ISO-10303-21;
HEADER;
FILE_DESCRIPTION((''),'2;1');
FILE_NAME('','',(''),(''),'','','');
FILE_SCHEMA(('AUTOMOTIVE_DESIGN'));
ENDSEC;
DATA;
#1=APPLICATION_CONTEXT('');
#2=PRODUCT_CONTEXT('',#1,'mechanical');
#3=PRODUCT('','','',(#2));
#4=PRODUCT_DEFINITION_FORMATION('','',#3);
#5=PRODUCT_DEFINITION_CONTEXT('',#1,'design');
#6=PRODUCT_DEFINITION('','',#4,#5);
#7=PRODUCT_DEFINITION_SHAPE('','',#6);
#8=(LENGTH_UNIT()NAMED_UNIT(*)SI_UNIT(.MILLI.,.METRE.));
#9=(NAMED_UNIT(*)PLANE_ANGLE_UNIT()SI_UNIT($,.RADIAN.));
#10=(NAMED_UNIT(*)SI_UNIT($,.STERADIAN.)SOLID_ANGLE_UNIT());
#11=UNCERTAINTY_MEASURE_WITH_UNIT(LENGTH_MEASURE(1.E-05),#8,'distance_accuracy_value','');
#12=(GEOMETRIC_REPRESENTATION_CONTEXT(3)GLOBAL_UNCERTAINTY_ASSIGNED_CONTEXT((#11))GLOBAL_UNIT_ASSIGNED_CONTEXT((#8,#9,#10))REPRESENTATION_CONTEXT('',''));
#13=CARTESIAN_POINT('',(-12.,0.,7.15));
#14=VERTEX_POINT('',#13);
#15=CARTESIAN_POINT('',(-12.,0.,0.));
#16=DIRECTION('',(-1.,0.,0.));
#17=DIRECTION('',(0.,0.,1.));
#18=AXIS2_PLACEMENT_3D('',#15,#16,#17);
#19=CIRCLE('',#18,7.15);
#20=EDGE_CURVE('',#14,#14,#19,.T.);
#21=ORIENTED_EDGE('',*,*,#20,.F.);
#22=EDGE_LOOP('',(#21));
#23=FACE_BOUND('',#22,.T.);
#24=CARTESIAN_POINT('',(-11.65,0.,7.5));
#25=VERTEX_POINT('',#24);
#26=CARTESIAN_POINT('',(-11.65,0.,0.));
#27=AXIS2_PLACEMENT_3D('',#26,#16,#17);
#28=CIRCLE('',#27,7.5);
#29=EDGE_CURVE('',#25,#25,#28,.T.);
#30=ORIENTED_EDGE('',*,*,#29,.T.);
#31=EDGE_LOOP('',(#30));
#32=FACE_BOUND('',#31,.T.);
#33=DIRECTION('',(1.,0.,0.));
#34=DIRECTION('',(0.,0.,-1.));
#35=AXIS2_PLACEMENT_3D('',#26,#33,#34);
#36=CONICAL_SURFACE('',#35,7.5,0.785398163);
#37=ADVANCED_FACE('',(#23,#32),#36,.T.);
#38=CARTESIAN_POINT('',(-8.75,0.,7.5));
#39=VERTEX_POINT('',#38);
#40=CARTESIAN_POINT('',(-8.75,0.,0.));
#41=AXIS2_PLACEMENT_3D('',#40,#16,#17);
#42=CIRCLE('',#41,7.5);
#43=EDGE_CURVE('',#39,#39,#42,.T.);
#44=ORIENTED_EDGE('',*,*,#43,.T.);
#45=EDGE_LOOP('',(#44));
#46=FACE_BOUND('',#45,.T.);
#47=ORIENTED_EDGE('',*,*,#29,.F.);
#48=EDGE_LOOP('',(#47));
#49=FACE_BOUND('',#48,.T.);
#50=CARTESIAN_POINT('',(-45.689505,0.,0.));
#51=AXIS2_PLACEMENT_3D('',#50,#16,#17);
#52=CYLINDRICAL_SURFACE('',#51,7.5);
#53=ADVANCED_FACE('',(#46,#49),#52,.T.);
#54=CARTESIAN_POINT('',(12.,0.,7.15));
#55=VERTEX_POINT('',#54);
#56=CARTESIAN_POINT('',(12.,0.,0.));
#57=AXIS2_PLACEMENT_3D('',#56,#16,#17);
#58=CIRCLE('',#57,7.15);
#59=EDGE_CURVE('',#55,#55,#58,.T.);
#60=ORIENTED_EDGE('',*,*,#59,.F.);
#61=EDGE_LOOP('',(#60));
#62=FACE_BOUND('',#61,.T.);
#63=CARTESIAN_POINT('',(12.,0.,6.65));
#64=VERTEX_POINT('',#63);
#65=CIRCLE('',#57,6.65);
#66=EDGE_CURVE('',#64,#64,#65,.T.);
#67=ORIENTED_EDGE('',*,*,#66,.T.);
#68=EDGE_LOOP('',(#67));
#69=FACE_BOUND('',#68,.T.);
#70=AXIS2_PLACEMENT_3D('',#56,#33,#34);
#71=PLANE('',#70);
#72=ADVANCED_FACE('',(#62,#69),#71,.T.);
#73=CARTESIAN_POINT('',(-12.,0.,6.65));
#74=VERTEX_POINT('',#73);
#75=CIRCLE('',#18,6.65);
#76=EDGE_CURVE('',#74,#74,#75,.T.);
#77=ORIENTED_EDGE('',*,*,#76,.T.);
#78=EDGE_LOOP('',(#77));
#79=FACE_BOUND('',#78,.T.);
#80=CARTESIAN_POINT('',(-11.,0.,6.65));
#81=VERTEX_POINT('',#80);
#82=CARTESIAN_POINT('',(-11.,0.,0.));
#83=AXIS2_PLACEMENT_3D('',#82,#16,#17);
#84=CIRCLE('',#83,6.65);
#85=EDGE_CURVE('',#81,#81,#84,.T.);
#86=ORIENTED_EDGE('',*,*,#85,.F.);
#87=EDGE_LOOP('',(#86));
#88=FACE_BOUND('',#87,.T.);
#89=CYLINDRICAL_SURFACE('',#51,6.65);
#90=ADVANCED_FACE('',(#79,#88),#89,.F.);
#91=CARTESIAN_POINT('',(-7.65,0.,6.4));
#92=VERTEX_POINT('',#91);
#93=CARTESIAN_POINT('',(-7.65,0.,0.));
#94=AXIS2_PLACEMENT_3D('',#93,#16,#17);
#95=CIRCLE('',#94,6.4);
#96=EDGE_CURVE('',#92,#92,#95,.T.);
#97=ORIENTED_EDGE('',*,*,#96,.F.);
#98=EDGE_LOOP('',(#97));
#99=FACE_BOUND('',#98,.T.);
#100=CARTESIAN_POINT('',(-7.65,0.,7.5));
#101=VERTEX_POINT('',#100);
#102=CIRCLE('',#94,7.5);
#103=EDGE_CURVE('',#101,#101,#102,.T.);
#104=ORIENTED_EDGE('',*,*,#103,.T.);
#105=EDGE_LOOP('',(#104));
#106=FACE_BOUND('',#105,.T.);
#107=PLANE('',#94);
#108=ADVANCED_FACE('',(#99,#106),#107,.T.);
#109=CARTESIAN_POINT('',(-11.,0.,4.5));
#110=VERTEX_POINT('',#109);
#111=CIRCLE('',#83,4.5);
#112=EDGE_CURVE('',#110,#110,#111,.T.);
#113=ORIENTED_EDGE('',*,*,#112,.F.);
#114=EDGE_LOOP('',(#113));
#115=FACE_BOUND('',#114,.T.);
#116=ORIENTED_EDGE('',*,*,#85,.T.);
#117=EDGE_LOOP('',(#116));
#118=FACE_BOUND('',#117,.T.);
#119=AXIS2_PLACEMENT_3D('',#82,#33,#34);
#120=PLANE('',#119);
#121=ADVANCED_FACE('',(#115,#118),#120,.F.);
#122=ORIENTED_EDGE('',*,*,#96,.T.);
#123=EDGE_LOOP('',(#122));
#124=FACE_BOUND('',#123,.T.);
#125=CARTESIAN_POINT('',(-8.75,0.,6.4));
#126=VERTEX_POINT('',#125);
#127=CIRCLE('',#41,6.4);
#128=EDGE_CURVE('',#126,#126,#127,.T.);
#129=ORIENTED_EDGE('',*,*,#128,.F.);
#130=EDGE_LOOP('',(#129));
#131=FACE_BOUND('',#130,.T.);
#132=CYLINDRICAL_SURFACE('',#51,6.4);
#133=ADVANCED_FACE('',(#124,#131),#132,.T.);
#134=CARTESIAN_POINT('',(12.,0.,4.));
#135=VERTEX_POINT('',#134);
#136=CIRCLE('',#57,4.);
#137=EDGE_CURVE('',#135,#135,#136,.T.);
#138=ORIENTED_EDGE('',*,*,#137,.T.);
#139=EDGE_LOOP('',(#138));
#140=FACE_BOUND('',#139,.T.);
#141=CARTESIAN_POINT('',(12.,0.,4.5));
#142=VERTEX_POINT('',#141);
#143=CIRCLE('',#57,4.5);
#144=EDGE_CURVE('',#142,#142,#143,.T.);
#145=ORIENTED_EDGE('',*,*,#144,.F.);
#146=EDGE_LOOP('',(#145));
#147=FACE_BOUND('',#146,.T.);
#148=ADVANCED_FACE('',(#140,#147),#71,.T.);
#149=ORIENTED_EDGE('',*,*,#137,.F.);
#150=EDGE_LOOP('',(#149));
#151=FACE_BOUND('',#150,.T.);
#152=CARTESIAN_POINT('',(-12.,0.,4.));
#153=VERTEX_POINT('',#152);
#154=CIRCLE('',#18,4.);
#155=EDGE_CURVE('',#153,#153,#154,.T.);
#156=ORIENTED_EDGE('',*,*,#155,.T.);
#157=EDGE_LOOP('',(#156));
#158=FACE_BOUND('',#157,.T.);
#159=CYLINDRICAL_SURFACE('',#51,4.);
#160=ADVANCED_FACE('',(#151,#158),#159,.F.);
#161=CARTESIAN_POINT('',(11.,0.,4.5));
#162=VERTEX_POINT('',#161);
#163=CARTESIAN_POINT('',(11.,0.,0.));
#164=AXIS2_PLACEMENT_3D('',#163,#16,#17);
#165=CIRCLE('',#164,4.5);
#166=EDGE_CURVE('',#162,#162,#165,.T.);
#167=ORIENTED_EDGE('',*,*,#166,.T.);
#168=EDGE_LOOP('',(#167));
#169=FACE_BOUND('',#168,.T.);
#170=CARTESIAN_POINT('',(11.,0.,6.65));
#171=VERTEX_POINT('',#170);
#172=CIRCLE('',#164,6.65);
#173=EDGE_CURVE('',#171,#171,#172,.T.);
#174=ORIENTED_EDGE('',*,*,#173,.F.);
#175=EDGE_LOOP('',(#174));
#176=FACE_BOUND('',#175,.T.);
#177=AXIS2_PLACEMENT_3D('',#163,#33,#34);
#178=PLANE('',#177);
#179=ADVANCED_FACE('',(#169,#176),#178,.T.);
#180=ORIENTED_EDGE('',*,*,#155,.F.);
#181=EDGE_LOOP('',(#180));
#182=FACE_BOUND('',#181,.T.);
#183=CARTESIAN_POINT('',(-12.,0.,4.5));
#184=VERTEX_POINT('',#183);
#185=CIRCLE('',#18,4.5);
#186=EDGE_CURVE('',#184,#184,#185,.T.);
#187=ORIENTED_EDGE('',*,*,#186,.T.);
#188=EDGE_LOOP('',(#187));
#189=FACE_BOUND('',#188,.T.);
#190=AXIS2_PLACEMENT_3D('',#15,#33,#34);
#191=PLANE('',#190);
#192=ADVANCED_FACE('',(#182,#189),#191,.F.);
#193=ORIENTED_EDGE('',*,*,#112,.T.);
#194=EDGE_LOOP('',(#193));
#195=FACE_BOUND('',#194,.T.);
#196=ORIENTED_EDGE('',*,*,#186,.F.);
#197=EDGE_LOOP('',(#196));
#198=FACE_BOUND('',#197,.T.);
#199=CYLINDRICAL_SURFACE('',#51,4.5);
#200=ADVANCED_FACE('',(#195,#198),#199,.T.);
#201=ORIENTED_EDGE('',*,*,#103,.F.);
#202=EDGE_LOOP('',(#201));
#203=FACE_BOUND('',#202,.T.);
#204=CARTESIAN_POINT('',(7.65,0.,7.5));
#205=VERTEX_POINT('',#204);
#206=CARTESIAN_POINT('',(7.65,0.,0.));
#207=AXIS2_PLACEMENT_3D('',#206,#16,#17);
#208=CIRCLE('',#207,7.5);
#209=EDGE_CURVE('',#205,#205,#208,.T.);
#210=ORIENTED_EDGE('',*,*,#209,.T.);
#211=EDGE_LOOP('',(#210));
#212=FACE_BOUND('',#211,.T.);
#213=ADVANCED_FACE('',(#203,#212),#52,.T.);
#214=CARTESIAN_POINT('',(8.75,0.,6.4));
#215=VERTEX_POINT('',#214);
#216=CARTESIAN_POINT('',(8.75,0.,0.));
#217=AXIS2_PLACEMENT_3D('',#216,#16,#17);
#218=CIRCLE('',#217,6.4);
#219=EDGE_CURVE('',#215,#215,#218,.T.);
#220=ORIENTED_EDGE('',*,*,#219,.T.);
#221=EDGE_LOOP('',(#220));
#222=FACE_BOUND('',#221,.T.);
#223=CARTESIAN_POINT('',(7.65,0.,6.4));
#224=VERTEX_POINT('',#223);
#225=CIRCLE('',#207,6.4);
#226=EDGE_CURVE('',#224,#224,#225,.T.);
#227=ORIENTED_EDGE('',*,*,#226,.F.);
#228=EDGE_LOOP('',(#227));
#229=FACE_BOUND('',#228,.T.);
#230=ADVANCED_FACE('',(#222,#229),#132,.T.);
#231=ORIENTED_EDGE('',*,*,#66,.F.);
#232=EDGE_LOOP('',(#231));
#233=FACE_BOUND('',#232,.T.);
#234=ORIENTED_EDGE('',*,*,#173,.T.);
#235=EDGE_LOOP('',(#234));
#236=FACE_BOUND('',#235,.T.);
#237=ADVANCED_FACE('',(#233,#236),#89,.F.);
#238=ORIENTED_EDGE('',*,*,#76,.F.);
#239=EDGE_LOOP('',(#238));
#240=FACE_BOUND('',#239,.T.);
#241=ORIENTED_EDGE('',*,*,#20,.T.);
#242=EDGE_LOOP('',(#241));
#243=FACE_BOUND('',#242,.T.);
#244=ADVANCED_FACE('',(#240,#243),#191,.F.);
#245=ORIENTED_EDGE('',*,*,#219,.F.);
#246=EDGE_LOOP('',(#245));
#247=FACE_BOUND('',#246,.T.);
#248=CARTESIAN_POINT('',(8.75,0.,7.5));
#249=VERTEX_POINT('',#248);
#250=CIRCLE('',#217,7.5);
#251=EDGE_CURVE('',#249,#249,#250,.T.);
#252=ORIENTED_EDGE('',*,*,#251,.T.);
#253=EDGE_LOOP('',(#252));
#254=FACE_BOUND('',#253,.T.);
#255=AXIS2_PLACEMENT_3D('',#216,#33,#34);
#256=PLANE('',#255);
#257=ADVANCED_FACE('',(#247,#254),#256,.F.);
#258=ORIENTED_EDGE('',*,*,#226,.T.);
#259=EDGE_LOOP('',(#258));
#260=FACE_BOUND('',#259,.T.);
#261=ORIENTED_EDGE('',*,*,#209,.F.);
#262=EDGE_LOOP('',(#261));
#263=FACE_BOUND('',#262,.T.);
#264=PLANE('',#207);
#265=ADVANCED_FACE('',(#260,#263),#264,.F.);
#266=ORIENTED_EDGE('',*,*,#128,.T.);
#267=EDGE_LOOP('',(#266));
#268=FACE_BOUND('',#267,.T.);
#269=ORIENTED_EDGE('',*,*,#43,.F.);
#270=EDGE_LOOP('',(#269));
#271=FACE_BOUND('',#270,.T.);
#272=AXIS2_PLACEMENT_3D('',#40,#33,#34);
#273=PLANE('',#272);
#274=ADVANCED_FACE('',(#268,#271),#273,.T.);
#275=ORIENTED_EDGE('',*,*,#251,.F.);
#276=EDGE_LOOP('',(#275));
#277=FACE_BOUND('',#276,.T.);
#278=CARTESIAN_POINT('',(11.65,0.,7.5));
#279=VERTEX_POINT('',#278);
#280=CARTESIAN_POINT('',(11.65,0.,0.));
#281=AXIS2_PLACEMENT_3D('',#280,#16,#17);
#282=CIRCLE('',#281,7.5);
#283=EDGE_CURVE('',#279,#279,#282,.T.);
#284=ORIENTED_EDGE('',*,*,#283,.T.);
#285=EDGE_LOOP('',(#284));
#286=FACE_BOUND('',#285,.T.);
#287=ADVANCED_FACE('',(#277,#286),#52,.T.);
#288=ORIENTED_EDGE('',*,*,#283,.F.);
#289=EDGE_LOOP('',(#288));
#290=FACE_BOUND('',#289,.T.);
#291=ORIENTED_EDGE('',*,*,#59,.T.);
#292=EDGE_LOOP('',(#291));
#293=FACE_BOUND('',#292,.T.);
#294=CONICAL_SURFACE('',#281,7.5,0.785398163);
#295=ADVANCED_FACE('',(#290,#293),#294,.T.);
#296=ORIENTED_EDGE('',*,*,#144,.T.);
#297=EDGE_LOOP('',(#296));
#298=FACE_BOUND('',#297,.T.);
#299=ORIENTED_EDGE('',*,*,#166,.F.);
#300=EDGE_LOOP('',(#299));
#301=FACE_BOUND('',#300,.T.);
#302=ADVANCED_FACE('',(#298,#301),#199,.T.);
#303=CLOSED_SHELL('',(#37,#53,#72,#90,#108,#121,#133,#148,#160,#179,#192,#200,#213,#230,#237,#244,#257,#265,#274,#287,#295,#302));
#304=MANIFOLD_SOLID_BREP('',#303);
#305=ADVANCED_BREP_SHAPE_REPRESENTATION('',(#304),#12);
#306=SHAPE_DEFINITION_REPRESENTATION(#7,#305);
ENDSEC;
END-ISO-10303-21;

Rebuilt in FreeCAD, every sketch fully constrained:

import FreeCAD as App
import Part
import Sketcher

V = App.Vector

doc = App.newDocument("Part")
body = doc.addObject("PartDesign::Body", "Body")

# Sketch on XY plane
sketch1 = doc.addObject("Sketcher::SketchObject", "Sketch")
body.addObject(sketch1)
sketch1.AttachmentSupport = (doc.XY_Plane, [""])
sketch1.MapMode = "FlatFace"
sketch1.addGeometry(Part.LineSegment(V(12, 7.15, 0), V(11.65, 7.5, 0)), False)
sketch1.addGeometry(Part.LineSegment(V(11.65, 7.5, 0), V(8.75, 7.5, 0)), False)
sketch1.addGeometry(Part.LineSegment(V(8.75, 7.5, 0), V(8.75, 6.4, 0)), False)
sketch1.addGeometry(Part.LineSegment(V(8.75, 6.4, 0), V(7.65, 6.4, 0)), False)
sketch1.addGeometry(Part.LineSegment(V(7.65, 6.4, 0), V(7.65, 7.5, 0)), False)
sketch1.addGeometry(Part.LineSegment(V(7.65, 7.5, 0), V(-7.65, 7.5, 0)), False)
sketch1.addGeometry(Part.LineSegment(V(-7.65, 7.5, 0), V(-7.65, 6.4, 0)), False)
sketch1.addGeometry(Part.LineSegment(V(-7.65, 6.4, 0), V(-8.75, 6.4, 0)), False)
sketch1.addGeometry(Part.LineSegment(V(-8.75, 6.4, 0), V(-8.75, 7.5, 0)), False)
sketch1.addGeometry(Part.LineSegment(V(-8.75, 7.5, 0), V(-11.65, 7.5, 0)), False)
sketch1.addGeometry(Part.LineSegment(V(-11.65, 7.5, 0), V(-12, 7.15, 0)), False)
sketch1.addGeometry(Part.LineSegment(V(-12, 7.15, 0), V(-12, 6.65, 0)), False)
sketch1.addGeometry(Part.LineSegment(V(-12, 6.65, 0), V(-11, 6.65, 0)), False)
sketch1.addGeometry(Part.LineSegment(V(-11, 6.65, 0), V(-11, 4.5, 0)), False)
sketch1.addGeometry(Part.LineSegment(V(-11, 4.5, 0), V(-12, 4.5, 0)), False)
sketch1.addGeometry(Part.LineSegment(V(-12, 4.5, 0), V(-12, 4, 0)), False)
sketch1.addGeometry(Part.LineSegment(V(-12, 4, 0), V(12, 4, 0)), False)
sketch1.addGeometry(Part.LineSegment(V(12, 4, 0), V(12, 4.5, 0)), False)
sketch1.addGeometry(Part.LineSegment(V(12, 4.5, 0), V(11, 4.5, 0)), False)
sketch1.addGeometry(Part.LineSegment(V(11, 4.5, 0), V(11, 6.65, 0)), False)
sketch1.addGeometry(Part.LineSegment(V(11, 6.65, 0), V(12, 6.65, 0)), False)
sketch1.addGeometry(Part.LineSegment(V(12, 6.65, 0), V(12, 7.15, 0)), False)
sketch1.addConstraint(Sketcher.Constraint("Coincident", 0, 2, 1, 1))
sketch1.addConstraint(Sketcher.Constraint("Coincident", 1, 2, 2, 1))
sketch1.addConstraint(Sketcher.Constraint("Coincident", 2, 2, 3, 1))
sketch1.addConstraint(Sketcher.Constraint("Coincident", 3, 2, 4, 1))
sketch1.addConstraint(Sketcher.Constraint("Coincident", 4, 2, 5, 1))
sketch1.addConstraint(Sketcher.Constraint("Coincident", 5, 2, 6, 1))
sketch1.addConstraint(Sketcher.Constraint("Coincident", 6, 2, 7, 1))
sketch1.addConstraint(Sketcher.Constraint("Coincident", 7, 2, 8, 1))
sketch1.addConstraint(Sketcher.Constraint("Coincident", 8, 2, 9, 1))
sketch1.addConstraint(Sketcher.Constraint("Coincident", 9, 2, 10, 1))
sketch1.addConstraint(Sketcher.Constraint("Coincident", 10, 2, 11, 1))
sketch1.addConstraint(Sketcher.Constraint("Coincident", 11, 2, 12, 1))
sketch1.addConstraint(Sketcher.Constraint("Coincident", 12, 2, 13, 1))
sketch1.addConstraint(Sketcher.Constraint("Coincident", 13, 2, 14, 1))
sketch1.addConstraint(Sketcher.Constraint("Coincident", 14, 2, 15, 1))
sketch1.addConstraint(Sketcher.Constraint("Coincident", 15, 2, 16, 1))
sketch1.addConstraint(Sketcher.Constraint("Coincident", 16, 2, 17, 1))
sketch1.addConstraint(Sketcher.Constraint("Coincident", 17, 2, 18, 1))
sketch1.addConstraint(Sketcher.Constraint("Coincident", 18, 2, 19, 1))
sketch1.addConstraint(Sketcher.Constraint("Coincident", 19, 2, 20, 1))
sketch1.addConstraint(Sketcher.Constraint("Coincident", 20, 2, 21, 1))
sketch1.addConstraint(Sketcher.Constraint("Coincident", 21, 2, 0, 1))
sketch1.addConstraint(Sketcher.Constraint("Horizontal", 1))
sketch1.addConstraint(Sketcher.Constraint("Vertical", 2))
sketch1.addConstraint(Sketcher.Constraint("Horizontal", 3))
sketch1.addConstraint(Sketcher.Constraint("Vertical", 4))
sketch1.addConstraint(Sketcher.Constraint("Horizontal", 5))
sketch1.addConstraint(Sketcher.Constraint("Vertical", 6))
sketch1.addConstraint(Sketcher.Constraint("Horizontal", 7))
sketch1.addConstraint(Sketcher.Constraint("Vertical", 8))
sketch1.addConstraint(Sketcher.Constraint("Horizontal", 9))
sketch1.addConstraint(Sketcher.Constraint("Vertical", 11))
sketch1.addConstraint(Sketcher.Constraint("Horizontal", 12))
sketch1.addConstraint(Sketcher.Constraint("Vertical", 13))
sketch1.addConstraint(Sketcher.Constraint("Horizontal", 14))
sketch1.addConstraint(Sketcher.Constraint("Vertical", 15))
sketch1.addConstraint(Sketcher.Constraint("Horizontal", 16))
sketch1.addConstraint(Sketcher.Constraint("Vertical", 17))
sketch1.addConstraint(Sketcher.Constraint("Horizontal", 18))
sketch1.addConstraint(Sketcher.Constraint("Vertical", 19))
sketch1.addConstraint(Sketcher.Constraint("Horizontal", 20))
sketch1.addConstraint(Sketcher.Constraint("Vertical", 21))
sketch1.addConstraint(Sketcher.Constraint("Symmetric", 3, 2, 6, 2, -2))
sketch1.addConstraint(Sketcher.Constraint("Symmetric", 1, 2, 8, 2, -2))
sketch1.addConstraint(Sketcher.Constraint("Symmetric", 14, 2, 17, 2, -2))
sketch1.addConstraint(Sketcher.Constraint("Symmetric", 12, 2, 19, 2, -2))
sketch1.addConstraint(Sketcher.Constraint("Symmetric", 10, 2, 21, 2, -2))
sketch1.addConstraint(Sketcher.Constraint("Perpendicular", 0, 10))
sketch1.addConstraint(Sketcher.Constraint("Horizontal", 1, 2, 4, 2))
sketch1.addConstraint(Sketcher.Constraint("Vertical", 11, 2, 14, 2))
sketch1.addConstraint(Sketcher.Constraint("Equal", 1, 9))
sketch1.addConstraint(Sketcher.Constraint("Equal", 7, 2))
sketch1.addConstraint(Sketcher.Constraint("Equal", 11, 15))
sketch1.addConstraint(Sketcher.Constraint("DistanceX", 12, 1, 12, 2, 1.0))
sketch1.addConstraint(Sketcher.Constraint("DistanceX", 16, 1, 16, 2, 24.0))
sketch1.addConstraint(Sketcher.Constraint("DistanceX", 1, 2, 1, 1, 2.9))
sketch1.addConstraint(Sketcher.Constraint("DistanceX", 3, 2, 3, 1, 1.1))
sketch1.addConstraint(Sketcher.Constraint("DistanceX", 5, 2, 5, 1, 15.3))
sketch1.addConstraint(Sketcher.Constraint("DistanceY", 11, 2, 11, 1, 0.5))
sketch1.addConstraint(Sketcher.Constraint("DistanceY", -1, 1, 15, 2, 4.0))
sketch1.addConstraint(Sketcher.Constraint("DistanceY", 13, 2, 9, 2, 3.0))
revolution = doc.addObject("PartDesign::Revolution", "Revolution")
body.addObject(revolution)
revolution.Profile = sketch1
revolution.ReferenceAxis = (sketch1, ["H_Axis"])
revolution.Angle = 360

doc.recompute()
